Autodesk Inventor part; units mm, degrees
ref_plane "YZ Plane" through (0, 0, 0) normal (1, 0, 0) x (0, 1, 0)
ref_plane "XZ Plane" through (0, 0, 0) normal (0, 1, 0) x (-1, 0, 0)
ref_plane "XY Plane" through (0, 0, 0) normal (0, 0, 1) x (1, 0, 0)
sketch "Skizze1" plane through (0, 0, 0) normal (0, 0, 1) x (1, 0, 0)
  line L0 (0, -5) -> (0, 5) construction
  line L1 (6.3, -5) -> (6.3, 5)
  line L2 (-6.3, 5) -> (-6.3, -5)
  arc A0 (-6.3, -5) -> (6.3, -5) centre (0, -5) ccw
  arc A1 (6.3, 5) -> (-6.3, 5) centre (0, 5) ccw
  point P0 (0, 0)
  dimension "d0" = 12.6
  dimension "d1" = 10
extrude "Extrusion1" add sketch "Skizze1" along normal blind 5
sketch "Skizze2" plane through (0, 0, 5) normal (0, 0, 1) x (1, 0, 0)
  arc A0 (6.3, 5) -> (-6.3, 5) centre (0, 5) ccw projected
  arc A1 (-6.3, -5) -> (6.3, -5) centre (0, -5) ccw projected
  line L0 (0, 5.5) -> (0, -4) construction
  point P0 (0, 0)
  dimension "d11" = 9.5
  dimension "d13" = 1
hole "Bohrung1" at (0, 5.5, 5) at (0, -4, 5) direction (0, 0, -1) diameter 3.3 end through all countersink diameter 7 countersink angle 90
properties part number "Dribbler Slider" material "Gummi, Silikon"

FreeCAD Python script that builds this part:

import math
import FreeCAD as App
import Part
import Sketcher

doc = App.newDocument("Part")
body = doc.addObject("PartDesign::Body", "Body")

# Sketch on XY plane
sketch1 = doc.addObject("Sketcher::SketchObject", "Sketch")
body.addObject(sketch1)
sketch1.AttachmentSupport = (doc.XY_Plane, [""])
sketch1.MapMode = "FlatFace"
sketch1.addGeometry([
    Part.ArcOfCircle(Part.Circle(App.Vector(0, -5, 0), App.Vector(0, 0, 1), 6), math.radians(180), math.radians(360)),
    Part.LineSegment(App.Vector(6, -5, 0), App.Vector(6, 5, 0)),
    Part.ArcOfCircle(Part.Circle(App.Vector(0, 5, 0), App.Vector(0, 0, 1), 6), math.radians(0), math.radians(180)),
    Part.LineSegment(App.Vector(-6, 5, 0), App.Vector(-6, -5, 0)),
], False)
sketch1.addConstraint([
    Sketcher.Constraint("Tangent", 0, 2, 1, 1),
    Sketcher.Constraint("Tangent", 1, 2, 2, 1),
    Sketcher.Constraint("Tangent", 2, 2, 3, 1),
    Sketcher.Constraint("Tangent", 3, 2, 0, 1),
    Sketcher.Constraint("Vertical", 1),
    Sketcher.Constraint("Vertical", 3),
    Sketcher.Constraint("Symmetric", 0, 3, 2, 3, -1, 1),
    Sketcher.Constraint("Radius", 0, 6.3),
    Sketcher.Constraint("DistanceY", 1, 1, 1, 2, 10.0),
])
pad1 = doc.addObject("PartDesign::Pad", "Pad")
body.addObject(pad1)
pad1.Profile = sketch1
pad1.Length = 5

# Sketch on XY plane
sketch2 = doc.addObject("Sketcher::SketchObject", "Sketch001")
body.addObject(sketch2)
sketch2.AttachmentSupport = (doc.XY_Plane, [""])
sketch2.MapMode = "FlatFace"
sketch2.AttachmentOffset = App.Placement(App.Vector(0, 0, 5), App.Rotation())
sketch2.addGeometry([
    Part.Circle(App.Vector(0, 5.5, 0), App.Vector(0, 0, 1), 1.6),
    Part.Circle(App.Vector(0, -4, 0), App.Vector(0, 0, 1), 1.6),
], False)
sketch2.addConstraint([
    Sketcher.Constraint("Equal", 0, 1),
    Sketcher.Constraint("PointOnObject", 0, 3, -2),
    Sketcher.Constraint("PointOnObject", 1, 3, -2),
    Sketcher.Constraint("Diameter", 0, 3.3),
    Sketcher.Constraint("DistanceY", 1, 3, -1, 1, 4.0),
    Sketcher.Constraint("DistanceY", -1, 1, 0, 3, 5.5),
])
doc.recompute()
hole = doc.addObject("PartDesign::Hole", "Hole")
body.addObject(hole)
hole.Profile = sketch2
hole.ThreadType = "None"
hole.Diameter = 3.3
hole.DepthType = "ThroughAll"
hole.HoleCutType = "Countersink"
hole.HoleCutDiameter = 7
hole.HoleCutCountersinkAngle = 90

doc.recompute()
